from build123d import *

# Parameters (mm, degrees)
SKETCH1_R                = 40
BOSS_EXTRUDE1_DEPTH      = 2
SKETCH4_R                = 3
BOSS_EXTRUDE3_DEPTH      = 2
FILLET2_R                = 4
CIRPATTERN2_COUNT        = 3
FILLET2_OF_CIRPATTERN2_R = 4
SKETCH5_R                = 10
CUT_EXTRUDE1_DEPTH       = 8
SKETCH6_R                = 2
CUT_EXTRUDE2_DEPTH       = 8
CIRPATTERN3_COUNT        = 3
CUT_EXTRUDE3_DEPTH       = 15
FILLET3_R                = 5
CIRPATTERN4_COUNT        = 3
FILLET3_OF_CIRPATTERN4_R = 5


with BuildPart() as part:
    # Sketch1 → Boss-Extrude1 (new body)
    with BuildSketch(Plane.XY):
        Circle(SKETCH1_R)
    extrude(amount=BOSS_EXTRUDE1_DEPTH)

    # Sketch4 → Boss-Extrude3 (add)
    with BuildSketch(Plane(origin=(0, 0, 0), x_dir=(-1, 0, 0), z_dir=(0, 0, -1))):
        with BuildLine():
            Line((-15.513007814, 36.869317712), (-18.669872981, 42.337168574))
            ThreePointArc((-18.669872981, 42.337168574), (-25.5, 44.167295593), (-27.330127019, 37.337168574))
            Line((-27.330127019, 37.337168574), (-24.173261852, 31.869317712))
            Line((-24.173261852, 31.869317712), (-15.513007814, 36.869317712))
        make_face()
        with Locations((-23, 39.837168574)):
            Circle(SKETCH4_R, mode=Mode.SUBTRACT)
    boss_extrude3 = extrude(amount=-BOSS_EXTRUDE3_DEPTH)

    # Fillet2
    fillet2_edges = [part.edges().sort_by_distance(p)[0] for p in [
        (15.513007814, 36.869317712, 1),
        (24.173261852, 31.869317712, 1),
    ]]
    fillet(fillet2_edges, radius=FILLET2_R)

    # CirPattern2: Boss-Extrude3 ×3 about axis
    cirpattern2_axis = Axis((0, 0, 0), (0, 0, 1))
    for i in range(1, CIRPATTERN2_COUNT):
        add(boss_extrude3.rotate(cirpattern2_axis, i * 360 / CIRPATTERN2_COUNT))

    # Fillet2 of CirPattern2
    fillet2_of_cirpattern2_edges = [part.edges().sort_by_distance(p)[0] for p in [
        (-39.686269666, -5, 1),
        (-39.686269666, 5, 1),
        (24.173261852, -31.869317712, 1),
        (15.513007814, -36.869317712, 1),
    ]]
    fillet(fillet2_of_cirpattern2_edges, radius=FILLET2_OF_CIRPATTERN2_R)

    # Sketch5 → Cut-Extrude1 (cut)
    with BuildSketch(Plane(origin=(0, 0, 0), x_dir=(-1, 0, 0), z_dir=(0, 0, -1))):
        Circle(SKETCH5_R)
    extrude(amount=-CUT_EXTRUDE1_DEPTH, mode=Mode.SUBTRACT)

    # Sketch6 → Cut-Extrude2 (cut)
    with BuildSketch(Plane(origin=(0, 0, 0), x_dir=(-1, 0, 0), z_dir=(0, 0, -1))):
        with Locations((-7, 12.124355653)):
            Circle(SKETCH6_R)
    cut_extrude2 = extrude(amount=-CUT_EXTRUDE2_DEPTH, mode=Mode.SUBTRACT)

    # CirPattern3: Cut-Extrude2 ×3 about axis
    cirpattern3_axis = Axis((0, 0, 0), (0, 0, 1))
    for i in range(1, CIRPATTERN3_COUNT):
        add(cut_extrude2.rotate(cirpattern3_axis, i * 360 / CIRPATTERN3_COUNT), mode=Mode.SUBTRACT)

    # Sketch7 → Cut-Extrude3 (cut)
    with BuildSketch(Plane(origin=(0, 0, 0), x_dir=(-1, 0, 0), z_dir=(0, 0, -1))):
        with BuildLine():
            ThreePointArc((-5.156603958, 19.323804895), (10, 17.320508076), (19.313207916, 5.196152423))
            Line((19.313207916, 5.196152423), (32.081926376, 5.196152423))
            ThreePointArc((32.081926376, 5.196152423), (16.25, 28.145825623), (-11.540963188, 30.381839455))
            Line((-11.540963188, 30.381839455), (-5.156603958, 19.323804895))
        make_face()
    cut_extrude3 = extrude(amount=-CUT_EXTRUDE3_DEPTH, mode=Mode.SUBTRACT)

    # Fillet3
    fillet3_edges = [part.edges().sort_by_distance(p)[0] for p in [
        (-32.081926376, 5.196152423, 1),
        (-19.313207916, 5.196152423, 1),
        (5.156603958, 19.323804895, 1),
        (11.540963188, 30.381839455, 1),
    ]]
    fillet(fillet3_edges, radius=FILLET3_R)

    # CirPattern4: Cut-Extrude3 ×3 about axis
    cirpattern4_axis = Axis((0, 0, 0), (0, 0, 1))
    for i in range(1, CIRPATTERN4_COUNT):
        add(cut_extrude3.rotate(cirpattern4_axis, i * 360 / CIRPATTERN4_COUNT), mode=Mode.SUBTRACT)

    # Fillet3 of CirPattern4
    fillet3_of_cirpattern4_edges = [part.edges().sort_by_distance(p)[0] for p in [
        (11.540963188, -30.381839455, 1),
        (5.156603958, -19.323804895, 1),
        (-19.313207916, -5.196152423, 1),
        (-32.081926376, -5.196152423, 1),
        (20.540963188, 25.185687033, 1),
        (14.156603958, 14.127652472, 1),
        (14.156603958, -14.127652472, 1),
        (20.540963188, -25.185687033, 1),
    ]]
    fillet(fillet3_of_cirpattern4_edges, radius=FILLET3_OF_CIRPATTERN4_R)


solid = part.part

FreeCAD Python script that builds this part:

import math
import FreeCAD as App
import Part
import Sketcher
from FreeCAD import Vector
Q = App.Units.Quantity


def edges_at(feature, points):
    """Names of the edges that pass closest to the given points."""
    edges = feature.Shape.Edges
    near = lambda p: min(range(len(edges)), key=lambda i: edges[i].distToShape(Part.Vertex(*p))[0])
    return sorted({f"Edge{near(p) + 1}" for p in points})

doc = App.newDocument("Part")
body = doc.addObject("PartDesign::Body", "Body")

sketch1 = doc.addObject("Sketcher::SketchObject", "Sketch")
body.addObject(sketch1)
sketch1.AttachmentSupport = (doc.XY_Plane, [""])
sketch1.MapMode = "FlatFace"
sketch1.addGeometry(Part.Circle(Vector(0, 0, 0), Vector(0, 0, 1), 40), False)
sketch1.addConstraint([
    Sketcher.Constraint("Coincident", 0, 3, -1, 1),
    Sketcher.Constraint("Diameter", 0, Q("80 mm")),
])
pad1 = doc.addObject("PartDesign::Pad", "Pad")
body.addObject(pad1)
pad1.Profile = sketch1
pad1.Length = 2

sketch2 = doc.addObject("Sketcher::SketchObject", "Sketch001")
body.addObject(sketch2)
sketch2.AttachmentSupport = (doc.XY_Plane, [""])
sketch2.MapMode = "FlatFace"
sketch2.addGeometry([
    Part.LineSegment(Vector(15.5, 36.9, 0), Vector(18.7, 42.3, 0)),
    Part.ArcOfCircle(Part.Circle(Vector(23, 39.8, 0), Vector(0, 0, 1), 5), math.radians(-30), math.radians(150)),
    Part.LineSegment(Vector(27.3, 37.3, 0), Vector(24.2, 31.9, 0)),
    Part.LineSegment(Vector(24.2, 31.9, 0), Vector(15.5, 36.9, 0)),
    Part.Circle(Vector(23, 39.8, 0), Vector(0, 0, 1), 3),
], False)
sketch2.addConstraint([
    Sketcher.Constraint("Tangent", 0, 2, 1, 2),
    Sketcher.Constraint("Tangent", 1, 1, 2, 1),
    Sketcher.Constraint("Coincident", 2, 2, 3, 1),
    Sketcher.Constraint("Coincident", 3, 2, 0, 1),
    Sketcher.Constraint("Coincident", 4, 3, 1, 3),
    Sketcher.Constraint("Parallel", 0, 2),
    Sketcher.Constraint("Perpendicular", 2, 3),
    Sketcher.Constraint("Diameter", 4, Q("6 mm")),
    Sketcher.Constraint("Radius", 1, Q("5 mm")),
    Sketcher.Constraint("Angle", 0, Q("60 deg")),
    Sketcher.Constraint("DistanceX", -1, 1, 1, 3, Q("23 mm")),
    Sketcher.Constraint("Distance", 0, Q("6.31373 mm")),
    Sketcher.Constraint("DistanceY", -1, 1, 1, 3, Q("39.837169 mm")),
])
pad2 = doc.addObject("PartDesign::Pad", "Pad001")
body.addObject(pad2)
pad2.Profile = sketch2
pad2.Length = 2
doc.recompute()

fillet = doc.addObject("PartDesign::Fillet", "Fillet")
body.addObject(fillet)
fillet.Base = (pad2, edges_at(pad2, [(15.513, 36.869, 1), (24.173, 31.869, 1)]))
fillet.Radius = 4
doc.recompute()

polarpattern = doc.addObject("PartDesign::PolarPattern", "PolarPattern")
body.addObject(polarpattern)
polarpattern.Originals = [pad2]
polarpattern.Axis = (doc.Z_Axis, [""])
polarpattern.Angle = 360
polarpattern.Occurrences = 3
body.Tip = polarpattern
doc.recompute()

fillet2 = doc.addObject("PartDesign::Fillet", "Fillet001")
body.addObject(fillet2)
fillet2.Base = (polarpattern, edges_at(polarpattern, [
    (-39.686, -5, 1),
    (-39.686, 5, 1),
    (24.173, -31.869, 1),
    (15.513, -36.869, 1),
]))
fillet2.Radius = 4

sketch3 = doc.addObject("Sketcher::SketchObject", "Sketch002")
body.addObject(sketch3)
sketch3.AttachmentSupport = (doc.XY_Plane, [""])
sketch3.MapMode = "FlatFace"
sketch3.addGeometry(Part.Circle(Vector(0, 0, 0), Vector(0, 0, 1), 10), False)
sketch3.addConstraint([
    Sketcher.Constraint("Coincident", 0, 3, -1, 1),
    Sketcher.Constraint("Diameter", 0, Q("20 mm")),
])
pocket1 = doc.addObject("PartDesign::Pocket", "Pocket")
body.addObject(pocket1)
pocket1.Profile = sketch3
pocket1.Length = 8
pocket1.Reversed = True

sketch4 = doc.addObject("Sketcher::SketchObject", "Sketch003")
body.addObject(sketch4)
sketch4.AttachmentSupport = (doc.XY_Plane, [""])
sketch4.MapMode = "FlatFace"
sketch4.addGeometry(Part.Circle(Vector(7, 12.1, 0), Vector(0, 0, 1), 2), False)
sketch4.addConstraint([
    Sketcher.Constraint("Diameter", 0, Q("4 mm")),
    Sketcher.Constraint("DistanceX", -1, 1, 0, 3, Q("7 mm")),
    Sketcher.Constraint("DistanceY", -1, 1, 0, 3, Q("12.124356 mm")),
])
pocket2 = doc.addObject("PartDesign::Pocket", "Pocket001")
body.addObject(pocket2)
pocket2.Profile = sketch4
pocket2.Length = 8
pocket2.Reversed = True
doc.recompute()

polarpattern2 = doc.addObject("PartDesign::PolarPattern", "PolarPattern001")
body.addObject(polarpattern2)
polarpattern2.Originals = [pocket2]
polarpattern2.Axis = (doc.Z_Axis, [""])
polarpattern2.Angle = 360
polarpattern2.Occurrences = 3
body.Tip = polarpattern2

sketch5 = doc.addObject("Sketcher::SketchObject", "Sketch004")
body.addObject(sketch5)
sketch5.AttachmentSupport = (doc.XY_Plane, [""])
sketch5.MapMode = "FlatFace"
sketch5.addGeometry([
    Part.ArcOfCircle(Part.Circle(Vector(0, 0, 0), Vector(0, 0, 1), 20), math.radians(75), math.radians(165)),
    Part.LineSegment(Vector(-19, 5, 0), Vector(-32, 5, 0)),
    Part.ArcOfCircle(Part.Circle(Vector(0, 0, 0), Vector(0, 0, 1), 32), math.radians(69), math.radians(171)),
    Part.LineSegment(Vector(12, 30, 0), Vector(5, 19, 0)),
], False)
sketch5.addConstraint([
    Sketcher.Constraint("Coincident", 0, 2, 1, 1),
    Sketcher.Constraint("Coincident", 1, 2, 2, 2),
    Sketcher.Constraint("Coincident", 2, 1, 3, 1),
    Sketcher.Constraint("Coincident", 3, 2, 0, 1),
    Sketcher.Constraint("Horizontal", 1),
    Sketcher.Constraint("Coincident", 0, 3, -1, 1),
    Sketcher.Constraint("Coincident", 2, 3, -1, 1),
    Sketcher.Constraint("Radius", 0, Q("20 mm")),
    Sketcher.Constraint("Radius", 2, Q("32.5 mm")),
    Sketcher.Constraint("Angle", 3, Q("-120 deg")),
    Sketcher.Constraint("DistanceX", 1, 2, 1, 1, Q("12.768718 mm")),
    Sketcher.Constraint("Distance", 3, Q("12.768718 mm")),
])
pocket3 = doc.addObject("PartDesign::Pocket", "Pocket002")
body.addObject(pocket3)
pocket3.Profile = sketch5
pocket3.Length = 15
pocket3.Reversed = True
doc.recompute()

fillet3 = doc.addObject("PartDesign::Fillet", "Fillet002")
body.addObject(fillet3)
fillet3.Base = (pocket3, edges_at(pocket3, [
    (-32.082, 5.196, 1),
    (-19.313, 5.196, 1),
    (5.157, 19.324, 1),
    (11.541, 30.382, 1),
]))
fillet3.Radius = 5
doc.recompute()

polarpattern3 = doc.addObject("PartDesign::PolarPattern", "PolarPattern002")
body.addObject(polarpattern3)
polarpattern3.Originals = [pocket3]
polarpattern3.Axis = (doc.Z_Axis, [""])
polarpattern3.Angle = 360
polarpattern3.Occurrences = 3
body.Tip = polarpattern3
doc.recompute()

fillet4 = doc.addObject("PartDesign::Fillet", "Fillet003")
body.addObject(fillet4)
fillet4.Base = (polarpattern3, edges_at(polarpattern3, [
    (11.541, -30.382, 1),
    (5.157, -19.324, 1),
    (-19.313, -5.196, 1),
    (-32.082, -5.196, 1),
    (20.541, 25.186, 1),
    (14.157, 14.128, 1),
    (14.157, -14.128, 1),
    (20.541, -25.186, 1),
]))
fillet4.Radius = 5

doc.recompute()
